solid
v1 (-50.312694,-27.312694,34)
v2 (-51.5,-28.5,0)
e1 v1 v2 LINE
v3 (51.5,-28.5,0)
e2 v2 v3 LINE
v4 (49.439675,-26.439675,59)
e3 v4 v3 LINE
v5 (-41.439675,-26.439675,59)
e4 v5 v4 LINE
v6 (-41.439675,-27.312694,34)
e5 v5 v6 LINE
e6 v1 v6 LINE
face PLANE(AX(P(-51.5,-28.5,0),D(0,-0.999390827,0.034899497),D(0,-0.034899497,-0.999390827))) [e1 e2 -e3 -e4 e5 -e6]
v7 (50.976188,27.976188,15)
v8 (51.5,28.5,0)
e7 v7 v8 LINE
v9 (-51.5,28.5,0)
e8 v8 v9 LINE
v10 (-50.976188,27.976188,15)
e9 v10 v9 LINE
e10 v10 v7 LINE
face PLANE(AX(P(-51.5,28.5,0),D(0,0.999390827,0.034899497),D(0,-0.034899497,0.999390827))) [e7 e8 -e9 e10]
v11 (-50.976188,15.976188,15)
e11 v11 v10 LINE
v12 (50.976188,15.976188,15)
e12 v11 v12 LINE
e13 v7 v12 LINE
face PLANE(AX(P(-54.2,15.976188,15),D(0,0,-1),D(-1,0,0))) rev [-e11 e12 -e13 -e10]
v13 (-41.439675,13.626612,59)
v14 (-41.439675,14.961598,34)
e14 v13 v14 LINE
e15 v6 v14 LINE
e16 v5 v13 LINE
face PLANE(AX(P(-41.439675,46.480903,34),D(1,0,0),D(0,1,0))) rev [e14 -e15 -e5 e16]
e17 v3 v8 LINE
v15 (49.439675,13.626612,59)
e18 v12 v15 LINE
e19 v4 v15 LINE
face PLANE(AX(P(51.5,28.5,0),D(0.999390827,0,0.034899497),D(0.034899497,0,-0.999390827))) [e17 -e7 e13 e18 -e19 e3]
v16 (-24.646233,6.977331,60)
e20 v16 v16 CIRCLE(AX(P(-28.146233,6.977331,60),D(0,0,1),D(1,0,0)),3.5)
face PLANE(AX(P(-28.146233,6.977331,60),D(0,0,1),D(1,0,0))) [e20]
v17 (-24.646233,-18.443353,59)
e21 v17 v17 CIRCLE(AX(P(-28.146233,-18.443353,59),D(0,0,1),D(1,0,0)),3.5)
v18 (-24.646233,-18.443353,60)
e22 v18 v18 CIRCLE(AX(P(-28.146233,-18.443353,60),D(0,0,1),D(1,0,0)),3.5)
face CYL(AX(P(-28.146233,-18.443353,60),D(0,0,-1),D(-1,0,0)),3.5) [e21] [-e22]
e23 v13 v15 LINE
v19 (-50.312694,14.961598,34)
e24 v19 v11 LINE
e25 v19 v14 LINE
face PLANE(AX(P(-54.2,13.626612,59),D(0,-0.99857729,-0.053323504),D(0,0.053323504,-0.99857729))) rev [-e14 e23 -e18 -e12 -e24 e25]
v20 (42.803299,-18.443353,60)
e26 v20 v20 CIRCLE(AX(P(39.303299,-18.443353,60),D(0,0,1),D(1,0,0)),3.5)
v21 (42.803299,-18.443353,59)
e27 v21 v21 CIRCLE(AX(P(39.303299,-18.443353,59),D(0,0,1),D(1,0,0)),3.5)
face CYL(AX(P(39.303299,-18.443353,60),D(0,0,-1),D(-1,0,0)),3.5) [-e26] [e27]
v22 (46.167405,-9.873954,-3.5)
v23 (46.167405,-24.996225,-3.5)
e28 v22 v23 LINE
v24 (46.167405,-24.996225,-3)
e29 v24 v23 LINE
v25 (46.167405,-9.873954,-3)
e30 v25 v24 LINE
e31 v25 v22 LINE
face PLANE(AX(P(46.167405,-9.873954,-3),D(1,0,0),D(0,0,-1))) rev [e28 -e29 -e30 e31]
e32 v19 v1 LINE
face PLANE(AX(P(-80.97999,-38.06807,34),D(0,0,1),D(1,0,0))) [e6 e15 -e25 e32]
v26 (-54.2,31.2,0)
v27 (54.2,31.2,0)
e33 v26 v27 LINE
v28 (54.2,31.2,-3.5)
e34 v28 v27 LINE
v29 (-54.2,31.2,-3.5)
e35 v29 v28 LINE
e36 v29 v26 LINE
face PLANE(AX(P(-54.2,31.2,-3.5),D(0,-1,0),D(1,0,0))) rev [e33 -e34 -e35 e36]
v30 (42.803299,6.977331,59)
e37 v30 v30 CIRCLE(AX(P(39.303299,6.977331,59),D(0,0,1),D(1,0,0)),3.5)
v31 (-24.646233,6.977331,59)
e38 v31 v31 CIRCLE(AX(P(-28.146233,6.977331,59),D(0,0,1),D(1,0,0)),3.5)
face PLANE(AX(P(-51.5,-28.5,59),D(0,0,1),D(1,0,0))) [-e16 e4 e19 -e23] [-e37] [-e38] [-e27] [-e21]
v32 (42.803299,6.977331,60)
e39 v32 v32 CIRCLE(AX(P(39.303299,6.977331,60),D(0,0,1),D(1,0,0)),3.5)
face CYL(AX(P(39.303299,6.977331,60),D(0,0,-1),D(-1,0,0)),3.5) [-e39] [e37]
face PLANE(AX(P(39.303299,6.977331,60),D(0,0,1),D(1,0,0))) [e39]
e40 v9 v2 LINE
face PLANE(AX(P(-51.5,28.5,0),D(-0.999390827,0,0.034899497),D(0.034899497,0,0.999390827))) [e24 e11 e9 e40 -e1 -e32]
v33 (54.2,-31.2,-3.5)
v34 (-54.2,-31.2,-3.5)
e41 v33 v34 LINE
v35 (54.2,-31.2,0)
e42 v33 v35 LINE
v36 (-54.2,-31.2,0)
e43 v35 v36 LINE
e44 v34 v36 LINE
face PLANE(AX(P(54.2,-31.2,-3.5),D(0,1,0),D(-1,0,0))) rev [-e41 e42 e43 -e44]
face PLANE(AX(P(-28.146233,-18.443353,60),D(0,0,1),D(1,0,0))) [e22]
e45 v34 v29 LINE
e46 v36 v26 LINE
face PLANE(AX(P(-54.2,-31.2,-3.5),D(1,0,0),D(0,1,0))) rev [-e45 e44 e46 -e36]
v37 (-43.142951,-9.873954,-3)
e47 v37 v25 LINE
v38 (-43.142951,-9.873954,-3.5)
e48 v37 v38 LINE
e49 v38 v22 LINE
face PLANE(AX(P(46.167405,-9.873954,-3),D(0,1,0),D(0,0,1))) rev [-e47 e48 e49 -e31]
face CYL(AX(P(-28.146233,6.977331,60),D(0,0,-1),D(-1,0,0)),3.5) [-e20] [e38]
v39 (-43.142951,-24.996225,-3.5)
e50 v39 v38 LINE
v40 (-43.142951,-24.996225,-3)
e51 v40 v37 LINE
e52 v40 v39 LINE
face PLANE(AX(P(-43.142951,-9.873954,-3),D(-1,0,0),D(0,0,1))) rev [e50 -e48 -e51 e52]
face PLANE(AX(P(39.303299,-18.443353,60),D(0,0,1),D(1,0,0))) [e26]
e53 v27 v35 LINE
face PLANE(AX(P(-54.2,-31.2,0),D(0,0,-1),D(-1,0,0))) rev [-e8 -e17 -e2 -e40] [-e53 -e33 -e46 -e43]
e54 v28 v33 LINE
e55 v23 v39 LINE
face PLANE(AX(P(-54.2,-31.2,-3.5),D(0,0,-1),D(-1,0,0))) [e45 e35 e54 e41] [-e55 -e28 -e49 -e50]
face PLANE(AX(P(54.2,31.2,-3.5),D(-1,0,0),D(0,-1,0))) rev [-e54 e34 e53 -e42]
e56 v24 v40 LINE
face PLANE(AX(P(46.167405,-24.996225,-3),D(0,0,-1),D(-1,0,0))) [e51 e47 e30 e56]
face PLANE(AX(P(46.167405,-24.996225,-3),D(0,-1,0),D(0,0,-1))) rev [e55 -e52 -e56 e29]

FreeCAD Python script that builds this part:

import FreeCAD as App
import Part
import Sketcher
Q = App.Units.Quantity


def add_polygon(sketch, points):
    """Adds a closed chain of lines whose ends are joined by coincident constraints."""
    first, n = sketch.GeometryCount, len(points)
    for a, b in zip(points, points[1:] + points[:1]):
        sketch.addGeometry(Part.LineSegment(App.Vector(*a, 0), App.Vector(*b, 0)), False)
    for i in range(n):
        sketch.addConstraint(Sketcher.Constraint("Coincident", first + i, 2, first + (i + 1) % n, 1))

doc = App.newDocument("Part")
params = doc.addObject("Spreadsheet::Sheet", "Params")
for row, (alias, value) in enumerate([
    ("sketch1_width", "103 mm"),
    ("sketch1_height", "57 mm"),
    ("pad1_length", "59 mm"),
    ("pad1_taper", "-2 deg"),
    ("pocket1_length", "25 mm"),
    ("sketch3_diameter", "7 mm"),
    ("pad2_length", "1 mm"),
    ("sketch4_width", "108.4 mm"),
    ("sketch4_height", "62.4 mm"),
    ("pad3_length", "3.5 mm"),
    ("sketch5_width", "12 mm"),
    ("pocket3_length", "0.5 mm"),
], start=1):
    params.set(f"A{row}", alias)
    params.set(f"B{row}", "=" + value)
    params.setAlias(f"B{row}", alias)

body = doc.addObject("PartDesign::Body", "Body")

sketch1 = doc.addObject("Sketcher::SketchObject", "Sketch")
body.addObject(sketch1)
sketch1.AttachmentSupport = (doc.XY_Plane, [""])
sketch1.MapMode = "FlatFace"
add_polygon(sketch1, [(-52, 28), (-52, -28), (52, -28), (52, 28)])
sketch1.addConstraint(Sketcher.Constraint("Vertical", 0))
sketch1.addConstraint(Sketcher.Constraint("Horizontal", 1))
sketch1.addConstraint(Sketcher.Constraint("Vertical", 2))
sketch1.addConstraint(Sketcher.Constraint("Horizontal", 3))
sketch1.addConstraint(Sketcher.Constraint("Symmetric", 0, 2, 2, 2, -1, 1))
sketch1.addConstraint(Sketcher.Constraint("DistanceX", 1, 1, 1, 2, Q("103 mm")))
sketch1.addConstraint(Sketcher.Constraint("DistanceY", 0, 2, 0, 1, Q("57 mm")))
sketch1.setExpression("Constraints[9]", "Params.sketch1_width")
sketch1.setExpression("Constraints[10]", "Params.sketch1_height")
pad1 = doc.addObject("PartDesign::Pad", "Pad")
body.addObject(pad1)
pad1.Profile = sketch1
pad1.setExpression("Length", "Params.pad1_length")
pad1.setExpression("TaperAngle", "Params.pad1_taper")

sketch2 = doc.addObject("Sketcher::SketchObject", "Sketch001")
body.addObject(sketch2)
sketch2.AttachmentSupport = (doc.XY_Plane, [""])
sketch2.MapMode = "FlatFace"
sketch2.AttachmentOffset = App.Placement(App.Vector(0, 0, 59), App.Rotation())
add_polygon(sketch2, [(-81, 46), (-81, -38), (-41, -38), (-41, 46)])
sketch2.addConstraint(Sketcher.Constraint("Vertical", 0))
sketch2.addConstraint(Sketcher.Constraint("Horizontal", 1))
sketch2.addConstraint(Sketcher.Constraint("Vertical", 2))
sketch2.addConstraint(Sketcher.Constraint("Horizontal", 3))
sketch2.addConstraint(Sketcher.Constraint("DistanceX", 1, 1, 1, 2, Q("39.540316 mm")))
sketch2.addConstraint(Sketcher.Constraint("DistanceY", 0, 2, 0, 1, Q("84.548973 mm")))
sketch2.addConstraint(Sketcher.Constraint("DistanceX", 0, 2, -1, 1, Q("80.97999 mm")))
sketch2.addConstraint(Sketcher.Constraint("DistanceY", 0, 2, -1, 1, Q("38.06807 mm")))
pocket1 = doc.addObject("PartDesign::Pocket", "Pocket")
body.addObject(pocket1)
pocket1.Profile = sketch2
pocket1.setExpression("Length", "Params.pocket1_length")

sketch3 = doc.addObject("Sketcher::SketchObject", "Sketch002")
body.addObject(sketch3)
sketch3.AttachmentSupport = (doc.XY_Plane, [""])
sketch3.MapMode = "FlatFace"
sketch3.AttachmentOffset = App.Placement(App.Vector(0, 0, 59), App.Rotation())
sketch3.addGeometry(Part.Circle(App.Vector(-28.1, 7, 0), App.Vector(0, 0, 1), 3.5), False)
sketch3.addGeometry(Part.Circle(App.Vector(39.3, 7, 0), App.Vector(0, 0, 1), 3.5), False)
sketch3.addGeometry(Part.Circle(App.Vector(-28.1, -18.4, 0), App.Vector(0, 0, 1), 3.5), False)
sketch3.addGeometry(Part.Circle(App.Vector(39.3, -18.4, 0), App.Vector(0, 0, 1), 3.5), False)
sketch3.addConstraint(Sketcher.Constraint("Equal", 0, 1))
sketch3.addConstraint(Sketcher.Constraint("Equal", 1, 2))
sketch3.addConstraint(Sketcher.Constraint("Equal", 2, 3))
sketch3.addConstraint(Sketcher.Constraint("Horizontal", 0, 3, 1, 3))
sketch3.addConstraint(Sketcher.Constraint("Horizontal", 2, 3, 3, 3))
sketch3.addConstraint(Sketcher.Constraint("Vertical", 0, 3, 2, 3))
sketch3.addConstraint(Sketcher.Constraint("Vertical", 1, 3, 3, 3))
sketch3.addConstraint(Sketcher.Constraint("Diameter", 0, Q("7 mm")))
sketch3.addConstraint(Sketcher.Constraint("DistanceX", -1, 1, 1, 3, Q("39.303299 mm")))
sketch3.addConstraint(Sketcher.Constraint("DistanceY", -1, 1, 0, 3, Q("6.977331 mm")))
sketch3.addConstraint(Sketcher.Constraint("DistanceX", 0, 3, -1, 1, Q("28.146233 mm")))
sketch3.addConstraint(Sketcher.Constraint("DistanceY", 2, 3, -1, 1, Q("18.443353 mm")))
sketch3.setExpression("Constraints[7]", "Params.sketch3_diameter")
pad2 = doc.addObject("PartDesign::Pad", "Pad001")
body.addObject(pad2)
pad2.Profile = sketch3
pad2.setExpression("Length", "Params.pad2_length")

sketch4 = doc.addObject("Sketcher::SketchObject", "Sketch003")
body.addObject(sketch4)
sketch4.AttachmentSupport = (doc.XY_Plane, [""])
sketch4.MapMode = "FlatFace"
add_polygon(sketch4, [(54, 31), (54, -31), (-54, -31), (-54, 31)])
sketch4.addConstraint(Sketcher.Constraint("Vertical", 0))
sketch4.addConstraint(Sketcher.Constraint("Horizontal", 1))
sketch4.addConstraint(Sketcher.Constraint("Vertical", 2))
sketch4.addConstraint(Sketcher.Constraint("Horizontal", 3))
sketch4.addConstraint(Sketcher.Constraint("Symmetric", 0, 2, 2, 2, -1, 1))
sketch4.addConstraint(Sketcher.Constraint("DistanceX", 1, 2, 1, 1, Q("108.4 mm")))
sketch4.addConstraint(Sketcher.Constraint("DistanceY", 0, 2, 0, 1, Q("62.4 mm")))
sketch4.setExpression("Constraints[9]", "Params.sketch4_width")
sketch4.setExpression("Constraints[10]", "Params.sketch4_height")
pad3 = doc.addObject("PartDesign::Pad", "Pad002")
body.addObject(pad3)
pad3.Profile = sketch4
pad3.setExpression("Length", "Params.pad3_length")
pad3.Reversed = True

sketch5 = doc.addObject("Sketcher::SketchObject", "Sketch004")
body.addObject(sketch5)
sketch5.AttachmentSupport = (doc.YZ_Plane, [""])
sketch5.MapMode = "FlatFace"
add_polygon(sketch5, [(14, 59), (16, 15), (28, 15), (30, 59)])
sketch5.addConstraint(Sketcher.Constraint("Horizontal", 1))
sketch5.addConstraint(Sketcher.Constraint("Horizontal", 3))
sketch5.addConstraint(Sketcher.Constraint("DistanceX", 1, 1, 1, 2, Q("12 mm")))
sketch5.addConstraint(Sketcher.Constraint("DistanceY", -1, 1, 0, 2, Q("15 mm")))
sketch5.addConstraint(Sketcher.Constraint("DistanceY", -1, 1, 2, 2, Q("59 mm")))
sketch5.addConstraint(Sketcher.Constraint("Distance", 0, Q("44.062688 mm")))
sketch5.addConstraint(Sketcher.Constraint("DistanceX", 3, 2, 3, 1, Q("16.031308 mm")))
sketch5.addConstraint(Sketcher.Constraint("DistanceX", -1, 1, 0, 2, Q("15.976188 mm")))
sketch5.setExpression("Constraints[6]", "Params.sketch5_width")
pocket2 = doc.addObject("PartDesign::Pocket", "Pocket001")
body.addObject(pocket2)
pocket2.Profile = sketch5
pocket2.Type = "ThroughAll"
pocket2.Midplane = True

sketch6 = doc.addObject("Sketcher::SketchObject", "Sketch005")
body.addObject(sketch6)
sketch6.AttachmentSupport = (doc.XY_Plane, [""])
sketch6.MapMode = "FlatFace"
sketch6.AttachmentOffset = App.Placement(App.Vector(0, 0, -3.5), App.Rotation())
add_polygon(sketch6, [(46, -10), (46, -25), (-43, -25), (-43, -10)])
sketch6.addConstraint(Sketcher.Constraint("Vertical", 0))
sketch6.addConstraint(Sketcher.Constraint("Horizontal", 1))
sketch6.addConstraint(Sketcher.Constraint("Vertical", 2))
sketch6.addConstraint(Sketcher.Constraint("Horizontal", 3))
sketch6.addConstraint(Sketcher.Constraint("DistanceY", 0, 2, 0, 1, Q("15.122271 mm")))
sketch6.addConstraint(Sketcher.Constraint("DistanceX", 1, 2, 1, 1, Q("89.310356 mm")))
sketch6.addConstraint(Sketcher.Constraint("DistanceX", 1, 2, -1, 1, Q("43.142951 mm")))
sketch6.addConstraint(Sketcher.Constraint("DistanceY", 0, 2, -1, 1, Q("24.996225 mm")))
pocket3 = doc.addObject("PartDesign::Pocket", "Pocket002")
body.addObject(pocket3)
pocket3.Profile = sketch6
pocket3.setExpression("Length", "Params.pocket3_length")
pocket3.Reversed = True

doc.recompute()
